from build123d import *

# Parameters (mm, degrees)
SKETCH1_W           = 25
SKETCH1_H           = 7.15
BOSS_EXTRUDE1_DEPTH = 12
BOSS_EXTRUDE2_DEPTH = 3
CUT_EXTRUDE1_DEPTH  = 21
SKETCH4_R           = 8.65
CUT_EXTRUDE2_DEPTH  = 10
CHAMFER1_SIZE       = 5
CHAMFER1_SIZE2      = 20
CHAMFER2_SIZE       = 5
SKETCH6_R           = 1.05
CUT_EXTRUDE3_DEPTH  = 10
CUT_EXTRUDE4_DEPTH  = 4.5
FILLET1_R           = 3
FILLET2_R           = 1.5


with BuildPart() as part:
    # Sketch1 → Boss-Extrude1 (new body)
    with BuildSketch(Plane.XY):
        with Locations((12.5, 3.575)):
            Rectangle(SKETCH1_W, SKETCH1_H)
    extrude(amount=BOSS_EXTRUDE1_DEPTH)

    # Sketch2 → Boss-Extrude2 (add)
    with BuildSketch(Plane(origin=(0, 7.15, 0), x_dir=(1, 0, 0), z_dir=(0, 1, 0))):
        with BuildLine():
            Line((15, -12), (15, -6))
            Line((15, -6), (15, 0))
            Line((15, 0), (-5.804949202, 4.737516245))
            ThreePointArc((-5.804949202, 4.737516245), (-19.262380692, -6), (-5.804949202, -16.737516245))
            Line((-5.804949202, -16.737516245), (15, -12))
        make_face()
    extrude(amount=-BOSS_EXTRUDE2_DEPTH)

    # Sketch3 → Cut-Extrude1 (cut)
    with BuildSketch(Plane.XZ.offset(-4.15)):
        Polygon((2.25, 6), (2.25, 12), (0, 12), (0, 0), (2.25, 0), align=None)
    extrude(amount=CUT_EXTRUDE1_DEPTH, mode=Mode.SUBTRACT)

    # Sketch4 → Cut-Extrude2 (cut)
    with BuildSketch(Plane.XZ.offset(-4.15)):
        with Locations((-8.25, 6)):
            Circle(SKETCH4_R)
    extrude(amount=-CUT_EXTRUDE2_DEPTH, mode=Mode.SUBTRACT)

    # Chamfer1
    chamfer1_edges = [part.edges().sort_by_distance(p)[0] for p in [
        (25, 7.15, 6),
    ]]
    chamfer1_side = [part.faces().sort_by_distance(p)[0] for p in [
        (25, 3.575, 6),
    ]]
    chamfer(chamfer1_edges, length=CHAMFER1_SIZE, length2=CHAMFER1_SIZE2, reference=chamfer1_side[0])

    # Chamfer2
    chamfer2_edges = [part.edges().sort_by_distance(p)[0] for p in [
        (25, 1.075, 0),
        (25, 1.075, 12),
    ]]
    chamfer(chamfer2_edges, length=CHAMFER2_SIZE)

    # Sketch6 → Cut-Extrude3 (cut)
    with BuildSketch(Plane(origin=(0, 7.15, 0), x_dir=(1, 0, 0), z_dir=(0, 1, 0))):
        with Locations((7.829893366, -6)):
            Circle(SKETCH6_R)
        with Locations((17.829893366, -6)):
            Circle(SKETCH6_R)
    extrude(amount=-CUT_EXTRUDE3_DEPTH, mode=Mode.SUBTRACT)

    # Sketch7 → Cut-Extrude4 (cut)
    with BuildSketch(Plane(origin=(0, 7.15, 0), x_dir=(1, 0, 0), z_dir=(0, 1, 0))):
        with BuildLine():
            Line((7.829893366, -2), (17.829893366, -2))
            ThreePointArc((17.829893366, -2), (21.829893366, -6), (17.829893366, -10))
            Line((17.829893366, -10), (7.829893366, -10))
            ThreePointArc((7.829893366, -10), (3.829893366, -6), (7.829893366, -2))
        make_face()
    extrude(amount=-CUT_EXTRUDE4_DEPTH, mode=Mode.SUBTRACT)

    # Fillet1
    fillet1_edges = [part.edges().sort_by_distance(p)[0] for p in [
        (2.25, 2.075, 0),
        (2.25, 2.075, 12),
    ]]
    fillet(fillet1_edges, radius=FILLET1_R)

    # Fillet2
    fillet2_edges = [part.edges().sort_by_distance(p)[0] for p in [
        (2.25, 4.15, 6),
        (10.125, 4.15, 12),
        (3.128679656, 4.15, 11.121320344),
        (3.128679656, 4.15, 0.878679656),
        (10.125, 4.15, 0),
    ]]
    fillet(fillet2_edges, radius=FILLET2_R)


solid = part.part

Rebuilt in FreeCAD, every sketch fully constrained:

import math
import FreeCAD as App
import Part
import Sketcher
from FreeCAD import Vector


def edges_at(feature, points):
    """Names of the edges that pass closest to the given points."""
    edges = feature.Shape.Edges
    near = lambda p: min(range(len(edges)), key=lambda i: edges[i].distToShape(Part.Vertex(*p))[0])
    return sorted({f"Edge{near(p) + 1}" for p in points})


def add_polygon(sketch, points):
    """Adds a closed chain of lines whose ends are joined by coincident constraints."""
    first, n = sketch.GeometryCount, len(points)
    for a, b in zip(points, points[1:] + points[:1]):
        sketch.addGeometry(Part.LineSegment(App.Vector(*a, 0), App.Vector(*b, 0)), False)
    for i in range(n):
        sketch.addConstraint(Sketcher.Constraint("Coincident", first + i, 2, first + (i + 1) % n, 1))

doc = App.newDocument("Part")
params = doc.addObject("Spreadsheet::Sheet", "Params")
for row, (alias, value) in enumerate([
    ("sketch1_width", "25 mm"),
    ("sketch1_height", "7.15 mm"),
    ("pad1_length", "12 mm"),
    ("sketch2_height", "12 mm"),
    ("pad2_length", "3 mm"),
    ("sketch3_height", "12 mm"),
    ("sketch3_width", "2.25 mm"),
    ("pocket1_length", "21 mm"),
    ("sketch4_diameter", "17.3 mm"),
    ("pocket2_length", "10 mm"),
    ("chamfer_size", "5 mm"),
    ("chamfer_size2", "20 mm"),
    ("chamfer2_size", "5 mm"),
    ("sketch5_diameter", "2.1 mm"),
    ("pocket3_length", "10 mm"),
    ("sketch6_radius", "4 mm"),
    ("sketch6_width", "10 mm"),
    ("pocket4_length", "4.5 mm"),
    ("fillet_radius", "3 mm"),
    ("fillet2_radius", "1.5 mm"),
], start=1):
    params.set(f"A{row}", alias)
    params.set(f"B{row}", "=" + value)
    params.setAlias(f"B{row}", alias)

body = doc.addObject("PartDesign::Body", "Body")

# Sketch on XY plane
sketch1 = doc.addObject("Sketcher::SketchObject", "Sketch")
body.addObject(sketch1)
sketch1.AttachmentSupport = (doc.XY_Plane, [""])
sketch1.MapMode = "FlatFace"
add_polygon(sketch1, [(0, 7), (0, 0), (25, 0), (25, 7)])  # lines 0-3
sketch1.addConstraint(Sketcher.Constraint("Vertical", 0))
sketch1.addConstraint(Sketcher.Constraint("Horizontal", 1))
sketch1.addConstraint(Sketcher.Constraint("Vertical", 2))
sketch1.addConstraint(Sketcher.Constraint("Horizontal", 3))
sketch1.addConstraint(Sketcher.Constraint("Coincident", 0, 2, -1, 1))
sketch1.addConstraint(Sketcher.Constraint("DistanceX", 1, 1, 1, 2, 25.0))
sketch1.addConstraint(Sketcher.Constraint("DistanceY", 0, 2, 0, 1, 7.15))
sketch1.setExpression("Constraints[9]", "Params.sketch1_width")
sketch1.setExpression("Constraints[10]", "Params.sketch1_height")
pad1 = doc.addObject("PartDesign::Pad", "Pad")
body.addObject(pad1)
pad1.Profile = sketch1
pad1.setExpression("Length", "Params.pad1_length")

# Sketch on XZ plane
sketch2 = doc.addObject("Sketcher::SketchObject", "Sketch001")
body.addObject(sketch2)
sketch2.AttachmentSupport = (doc.XZ_Plane, [""])
sketch2.MapMode = "FlatFace"
sketch2.AttachmentOffset = App.Placement(Vector(0, 0, -7.15), App.Rotation())
sketch2.addGeometry(Part.LineSegment(Vector(15, 12, 0), Vector(15, 0, 0)), False)
sketch2.addGeometry(Part.LineSegment(Vector(15, 0, 0), Vector(-6, -5, 0)), False)
sketch2.addGeometry(Part.ArcOfCircle(Part.Circle(Vector(-8, 6, 0), Vector(0, 0, 1), 11), math.radians(77), math.radians(283)), False)
sketch2.addGeometry(Part.LineSegment(Vector(-6, 17, 0), Vector(15, 12, 0)), False)
sketch2.addConstraint(Sketcher.Constraint("Coincident", 0, 2, 1, 1))
sketch2.addConstraint(Sketcher.Constraint("Tangent", 1, 2, 2, 2))
sketch2.addConstraint(Sketcher.Constraint("Tangent", 2, 1, 3, 1))
sketch2.addConstraint(Sketcher.Constraint("Coincident", 3, 2, 0, 1))
sketch2.addConstraint(Sketcher.Constraint("Vertical", 0))
sketch2.addConstraint(Sketcher.Constraint("PointOnObject", 0, 2, -1))
sketch2.addConstraint(Sketcher.Constraint("Vertical", 1, 2, 2, 1))
sketch2.addConstraint(Sketcher.Constraint("DistanceY", 0, 2, 0, 1, 12.0))
sketch2.addConstraint(Sketcher.Constraint("DistanceX", -1, 1, 0, 2, 15.0))
sketch2.addConstraint(Sketcher.Constraint("DistanceX", 2, 3, -1, 1, 8.25))
sketch2.addConstraint(Sketcher.Constraint("Radius", 2, 11.012381))
sketch2.setExpression("Constraints[7]", "Params.sketch2_height")
pad2 = doc.addObject("PartDesign::Pad", "Pad001")
body.addObject(pad2)
pad2.Profile = sketch2
pad2.setExpression("Length", "Params.pad2_length")

# Sketch on XZ plane
sketch3 = doc.addObject("Sketcher::SketchObject", "Sketch002")
body.addObject(sketch3)
sketch3.AttachmentSupport = (doc.XZ_Plane, [""])
sketch3.MapMode = "FlatFace"
sketch3.AttachmentOffset = App.Placement(Vector(0, 0, -4.15), App.Rotation())
add_polygon(sketch3, [(2.2, 12), (0, 12), (0, 0), (2.2, 0)])  # lines 0-3
sketch3.addConstraint(Sketcher.Constraint("Horizontal", 0))
sketch3.addConstraint(Sketcher.Constraint("Vertical", 1))
sketch3.addConstraint(Sketcher.Constraint("Horizontal", 2))
sketch3.addConstraint(Sketcher.Constraint("Vertical", 3))
sketch3.addConstraint(Sketcher.Constraint("Coincident", 1, 2, -1, 1))
sketch3.addConstraint(Sketcher.Constraint("DistanceY", 1, 2, 1, 1, 12.0))
sketch3.addConstraint(Sketcher.Constraint("DistanceX", 0, 2, 0, 1, 2.25))
sketch3.setExpression("Constraints[9]", "Params.sketch3_height")
sketch3.setExpression("Constraints[10]", "Params.sketch3_width")
pocket1 = doc.addObject("PartDesign::Pocket", "Pocket")
body.addObject(pocket1)
pocket1.Profile = sketch3
pocket1.setExpression("Length", "Params.pocket1_length")
pocket1.Reversed = True

# Sketch on XZ plane
sketch4 = doc.addObject("Sketcher::SketchObject", "Sketch003")
body.addObject(sketch4)
sketch4.AttachmentSupport = (doc.XZ_Plane, [""])
sketch4.MapMode = "FlatFace"
sketch4.AttachmentOffset = App.Placement(Vector(0, 0, -4.15), App.Rotation())
sketch4.addGeometry(Part.Circle(Vector(-8, 6, 0), Vector(0, 0, 1), 9), False)
sketch4.addConstraint(Sketcher.Constraint("Diameter", 0, 17.3))
sketch4.addConstraint(Sketcher.Constraint("DistanceY", -1, 1, 0, 3, 6.0))
sketch4.addConstraint(Sketcher.Constraint("DistanceX", 0, 3, -1, 1, 8.25))
sketch4.setExpression("Constraints[0]", "Params.sketch4_diameter")
pocket2 = doc.addObject("PartDesign::Pocket", "Pocket001")
body.addObject(pocket2)
pocket2.Profile = sketch4
pocket2.setExpression("Length", "Params.pocket2_length")
doc.recompute()

chamfer = doc.addObject("PartDesign::Chamfer", "Chamfer")
body.addObject(chamfer)
chamfer.Base = (pocket2, edges_at(pocket2, [(25, 7.15, 6)]))
chamfer.ChamferType = "Two distances"
chamfer.setExpression("Size", "Params.chamfer_size")
chamfer.setExpression("Size2", "Params.chamfer_size2")
chamfer.FlipDirection = True
doc.recompute()

chamfer2 = doc.addObject("PartDesign::Chamfer", "Chamfer001")
body.addObject(chamfer2)
chamfer2.Base = (chamfer, edges_at(chamfer, [(25, 1.075, 0), (25, 1.075, 12)]))
chamfer2.setExpression("Size", "Params.chamfer2_size")

# Sketch on XZ plane
sketch5 = doc.addObject("Sketcher::SketchObject", "Sketch004")
body.addObject(sketch5)
sketch5.AttachmentSupport = (doc.XZ_Plane, [""])
sketch5.MapMode = "FlatFace"
sketch5.AttachmentOffset = App.Placement(Vector(0, 0, -7.15), App.Rotation())
sketch5.addGeometry(Part.Circle(Vector(7.8, 6, 0), Vector(0, 0, 1), 1.1), False)
sketch5.addGeometry(Part.Circle(Vector(17.8, 6, 0), Vector(0, 0, 1), 1.1), False)
sketch5.addConstraint(Sketcher.Constraint("Equal", 0, 1))
sketch5.addConstraint(Sketcher.Constraint("Horizontal", 0, 3, 1, 3))
sketch5.addConstraint(Sketcher.Constraint("Diameter", 0, 2.1))
sketch5.addConstraint(Sketcher.Constraint("DistanceY", -1, 1, 0, 3, 6.0))
sketch5.addConstraint(Sketcher.Constraint("DistanceX", 0, 3, 1, 3, 10.0))
sketch5.addConstraint(Sketcher.Constraint("DistanceX", -1, 1, 0, 3, 7.829893))
sketch5.setExpression("Constraints[2]", "Params.sketch5_diameter")
pocket3 = doc.addObject("PartDesign::Pocket", "Pocket002")
body.addObject(pocket3)
pocket3.Profile = sketch5
pocket3.setExpression("Length", "Params.pocket3_length")
pocket3.Reversed = True

# Sketch on XZ plane
sketch6 = doc.addObject("Sketcher::SketchObject", "Sketch005")
body.addObject(sketch6)
sketch6.AttachmentSupport = (doc.XZ_Plane, [""])
sketch6.MapMode = "FlatFace"
sketch6.AttachmentOffset = App.Placement(Vector(0, 0, -7.15), App.Rotation())
sketch6.addGeometry(Part.LineSegment(Vector(17.8, 2, 0), Vector(7.8, 2, 0)), False)
sketch6.addGeometry(Part.ArcOfCircle(Part.Circle(Vector(7.8, 6, 0), Vector(0, 0, 1), 4), math.radians(90), math.radians(270)), False)
sketch6.addGeometry(Part.LineSegment(Vector(7.8, 10, 0), Vector(17.8, 10, 0)), False)
sketch6.addGeometry(Part.ArcOfCircle(Part.Circle(Vector(17.8, 6, 0), Vector(0, 0, 1), 4), math.radians(-90), math.radians(90)), False)
sketch6.addConstraint(Sketcher.Constraint("Tangent", 0, 2, 1, 2))
sketch6.addConstraint(Sketcher.Constraint("Tangent", 1, 1, 2, 1))
sketch6.addConstraint(Sketcher.Constraint("Tangent", 2, 2, 3, 2))
sketch6.addConstraint(Sketcher.Constraint("Tangent", 3, 1, 0, 1))
sketch6.addConstraint(Sketcher.Constraint("Horizontal", 0))
sketch6.addConstraint(Sketcher.Constraint("Horizontal", 2))
sketch6.addConstraint(Sketcher.Constraint("Radius", 1, 4.0))
sketch6.addConstraint(Sketcher.Constraint("DistanceX", 0, 2, 0, 1, 10.0))
sketch6.addConstraint(Sketcher.Constraint("DistanceY", -1, 1, 1, 3, 6.0))
sketch6.addConstraint(Sketcher.Constraint("DistanceX", -1, 1, 1, 3, 7.829893))
sketch6.setExpression("Constraints[6]", "Params.sketch6_radius")
sketch6.setExpression("Constraints[7]", "Params.sketch6_width")
pocket4 = doc.addObject("PartDesign::Pocket", "Pocket003")
body.addObject(pocket4)
pocket4.Profile = sketch6
pocket4.setExpression("Length", "Params.pocket4_length")
pocket4.Reversed = True
doc.recompute()

fillet = doc.addObject("PartDesign::Fillet", "Fillet")
body.addObject(fillet)
fillet.Base = (pocket4, edges_at(pocket4, [(2.25, 2.075, 0), (2.25, 2.075, 12)]))
fillet.setExpression("Radius", "Params.fillet_radius")
doc.recompute()

fillet2 = doc.addObject("PartDesign::Fillet", "Fillet001")
body.addObject(fillet2)
fillet2.Base = (fillet, edges_at(fillet, [
    (2.25, 4.15, 6),
    (10.125, 4.15, 12),
    (3.129, 4.15, 11.121),
    (3.129, 4.15, 0.879),
    (10.125, 4.15, 0),
]))
fillet2.setExpression("Radius", "Params.fillet2_radius")

doc.recompute()
